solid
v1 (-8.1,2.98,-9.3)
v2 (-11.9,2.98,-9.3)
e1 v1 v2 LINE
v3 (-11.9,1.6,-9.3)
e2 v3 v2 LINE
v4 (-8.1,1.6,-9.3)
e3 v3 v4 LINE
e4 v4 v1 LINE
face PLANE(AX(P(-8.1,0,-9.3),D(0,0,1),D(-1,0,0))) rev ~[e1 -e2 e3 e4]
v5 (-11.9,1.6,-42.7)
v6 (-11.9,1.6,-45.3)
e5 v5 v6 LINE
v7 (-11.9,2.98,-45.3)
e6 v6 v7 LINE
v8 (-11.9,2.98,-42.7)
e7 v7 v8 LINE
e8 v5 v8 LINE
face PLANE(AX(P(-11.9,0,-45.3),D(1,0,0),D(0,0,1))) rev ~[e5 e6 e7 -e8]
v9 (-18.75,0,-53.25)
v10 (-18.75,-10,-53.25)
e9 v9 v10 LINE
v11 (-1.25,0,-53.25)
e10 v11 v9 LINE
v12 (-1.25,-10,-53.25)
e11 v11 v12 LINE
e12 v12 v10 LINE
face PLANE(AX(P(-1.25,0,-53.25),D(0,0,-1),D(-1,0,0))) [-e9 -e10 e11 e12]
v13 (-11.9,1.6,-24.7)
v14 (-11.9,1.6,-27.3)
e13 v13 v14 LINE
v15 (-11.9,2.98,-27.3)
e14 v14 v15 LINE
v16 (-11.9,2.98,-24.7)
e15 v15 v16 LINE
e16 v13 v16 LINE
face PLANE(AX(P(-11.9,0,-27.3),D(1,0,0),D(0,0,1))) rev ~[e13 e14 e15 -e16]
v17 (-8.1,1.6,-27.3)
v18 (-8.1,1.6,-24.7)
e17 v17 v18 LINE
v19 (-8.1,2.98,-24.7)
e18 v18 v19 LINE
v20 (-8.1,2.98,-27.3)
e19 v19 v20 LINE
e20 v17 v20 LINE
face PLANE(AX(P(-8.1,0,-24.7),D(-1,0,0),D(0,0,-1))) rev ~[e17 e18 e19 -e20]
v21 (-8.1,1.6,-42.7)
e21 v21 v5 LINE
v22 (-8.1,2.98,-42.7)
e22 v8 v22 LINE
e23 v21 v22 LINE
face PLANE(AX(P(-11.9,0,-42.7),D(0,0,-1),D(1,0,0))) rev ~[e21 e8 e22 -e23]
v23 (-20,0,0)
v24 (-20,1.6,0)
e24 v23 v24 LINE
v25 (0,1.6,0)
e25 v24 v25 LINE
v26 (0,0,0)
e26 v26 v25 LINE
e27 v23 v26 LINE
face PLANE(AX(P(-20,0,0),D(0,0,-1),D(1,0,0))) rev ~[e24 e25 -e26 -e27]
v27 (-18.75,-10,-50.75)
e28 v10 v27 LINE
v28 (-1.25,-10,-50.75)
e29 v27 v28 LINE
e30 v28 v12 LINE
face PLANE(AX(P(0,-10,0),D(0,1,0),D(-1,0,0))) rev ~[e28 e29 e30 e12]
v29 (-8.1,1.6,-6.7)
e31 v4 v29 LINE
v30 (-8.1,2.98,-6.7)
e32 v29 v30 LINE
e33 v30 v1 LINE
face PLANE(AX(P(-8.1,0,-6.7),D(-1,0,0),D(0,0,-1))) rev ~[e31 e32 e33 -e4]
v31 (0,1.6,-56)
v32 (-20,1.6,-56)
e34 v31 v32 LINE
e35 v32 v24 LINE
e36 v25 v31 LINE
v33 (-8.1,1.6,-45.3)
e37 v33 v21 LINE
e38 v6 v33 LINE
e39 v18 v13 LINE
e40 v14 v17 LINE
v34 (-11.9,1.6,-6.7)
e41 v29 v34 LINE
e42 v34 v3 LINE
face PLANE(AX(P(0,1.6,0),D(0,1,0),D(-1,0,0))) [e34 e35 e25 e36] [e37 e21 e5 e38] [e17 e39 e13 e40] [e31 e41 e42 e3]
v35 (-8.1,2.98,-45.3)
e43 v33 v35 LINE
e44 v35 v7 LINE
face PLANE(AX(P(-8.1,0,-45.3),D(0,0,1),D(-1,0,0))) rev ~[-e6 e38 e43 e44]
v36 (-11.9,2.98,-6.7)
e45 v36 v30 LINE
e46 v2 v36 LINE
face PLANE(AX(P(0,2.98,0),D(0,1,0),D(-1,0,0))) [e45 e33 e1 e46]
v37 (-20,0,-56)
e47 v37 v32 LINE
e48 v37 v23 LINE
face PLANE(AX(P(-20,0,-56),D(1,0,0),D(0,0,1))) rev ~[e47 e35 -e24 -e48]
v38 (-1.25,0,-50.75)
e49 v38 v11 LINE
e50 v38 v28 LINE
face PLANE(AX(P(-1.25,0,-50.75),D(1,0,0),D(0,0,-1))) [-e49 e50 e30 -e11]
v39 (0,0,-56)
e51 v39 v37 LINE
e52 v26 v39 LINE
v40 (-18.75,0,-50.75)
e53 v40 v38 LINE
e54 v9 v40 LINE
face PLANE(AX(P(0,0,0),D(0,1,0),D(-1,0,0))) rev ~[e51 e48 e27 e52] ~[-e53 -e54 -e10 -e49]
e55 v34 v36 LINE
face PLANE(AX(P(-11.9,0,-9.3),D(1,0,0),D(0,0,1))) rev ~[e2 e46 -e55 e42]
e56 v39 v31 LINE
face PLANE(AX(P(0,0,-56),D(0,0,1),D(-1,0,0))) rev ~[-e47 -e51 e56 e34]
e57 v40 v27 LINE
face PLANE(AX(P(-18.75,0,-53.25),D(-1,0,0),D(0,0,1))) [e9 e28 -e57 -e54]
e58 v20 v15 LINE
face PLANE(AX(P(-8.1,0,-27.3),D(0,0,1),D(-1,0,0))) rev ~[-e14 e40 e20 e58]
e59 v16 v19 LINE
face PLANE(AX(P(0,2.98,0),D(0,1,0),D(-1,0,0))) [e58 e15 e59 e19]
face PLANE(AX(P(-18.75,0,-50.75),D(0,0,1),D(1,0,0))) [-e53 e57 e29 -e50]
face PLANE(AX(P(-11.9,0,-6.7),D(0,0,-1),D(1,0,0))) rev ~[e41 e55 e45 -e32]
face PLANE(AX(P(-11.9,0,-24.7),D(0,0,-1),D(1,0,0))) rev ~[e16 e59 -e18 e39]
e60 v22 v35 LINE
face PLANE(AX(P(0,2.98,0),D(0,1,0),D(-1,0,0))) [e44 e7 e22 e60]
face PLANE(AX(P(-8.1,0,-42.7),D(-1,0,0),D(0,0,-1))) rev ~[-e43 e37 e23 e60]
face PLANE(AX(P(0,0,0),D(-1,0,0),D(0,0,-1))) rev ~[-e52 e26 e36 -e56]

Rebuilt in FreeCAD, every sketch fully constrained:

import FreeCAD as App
import Part
import Sketcher

doc = App.newDocument("Part")
params = doc.addObject("Spreadsheet::Sheet", "Params")
for row, (alias, value) in enumerate([
    ("sketch1_width", "20 mm"),
    ("sketch1_height", "56 mm"),
    ("pad1_length", "1.6 mm"),
    ("sketch2_width", "17.5 mm"),
    ("sketch2_height", "2.5 mm"),
    ("pad2_length", "10 mm"),
    ("sketch3_width", "3.8 mm"),
    ("sketch3_height", "2.6 mm"),
    ("pad3_length", "2.98 mm"),
], start=1):
    params.set(f"A{row}", alias)
    params.set(f"B{row}", "=" + value)
    params.setAlias(f"B{row}", alias)

body = doc.addObject("PartDesign::Body", "Body")

# Sketch on XZ plane
sketch1 = body.newObject("Sketcher::SketchObject", "Sketch")
sketch1.AttachmentSupport = (doc.getObject("XZ_Plane"), [""])
sketch1.MapMode = "FlatFace"
sketch1.addGeometry([
    Part.LineSegment(App.Vector(-20, -56, 0), App.Vector(-20, 0, 0)),
    Part.LineSegment(App.Vector(-20, 0, 0), App.Vector(0, 0, 0)),
    Part.LineSegment(App.Vector(0, 0, 0), App.Vector(0, -56, 0)),
    Part.LineSegment(App.Vector(0, -56, 0), App.Vector(-20, -56, 0)),
], False)
sketch1.addConstraint([
    Sketcher.Constraint("Coincident", 0, 2, 1, 1),
    Sketcher.Constraint("Coincident", 1, 2, 2, 1),
    Sketcher.Constraint("Coincident", 2, 2, 3, 1),
    Sketcher.Constraint("Coincident", 3, 2, 0, 1),
    Sketcher.Constraint("Vertical", 0),
    Sketcher.Constraint("Horizontal", 1),
    Sketcher.Constraint("Vertical", 2),
    Sketcher.Constraint("Horizontal", 3),
    Sketcher.Constraint("Coincident", 1, 2, -1, 1),
    Sketcher.Constraint("DistanceX", 1, 1, 1, 2, 20.0),
    Sketcher.Constraint("DistanceY", 0, 1, 0, 2, 56.0),
])
sketch1.setExpression("Constraints[9]", "Params.sketch1_width")
sketch1.setExpression("Constraints[10]", "Params.sketch1_height")
pad1 = body.newObject("PartDesign::Pad", "Pad")
pad1.Profile = sketch1
pad1.setExpression("Length", "Params.pad1_length")
pad1.Reversed = True

# Sketch on XZ plane
sketch2 = body.newObject("Sketcher::SketchObject", "Sketch001")
sketch2.AttachmentSupport = (doc.getObject("XZ_Plane"), [""])
sketch2.MapMode = "FlatFace"
sketch2.addGeometry([
    Part.LineSegment(App.Vector(-18.75, -53.25, 0), App.Vector(-18.75, -50.75, 0)),
    Part.LineSegment(App.Vector(-18.75, -50.75, 0), App.Vector(-1.25, -50.75, 0)),
    Part.LineSegment(App.Vector(-1.25, -50.75, 0), App.Vector(-1.25, -53.25, 0)),
    Part.LineSegment(App.Vector(-1.25, -53.25, 0), App.Vector(-18.75, -53.25, 0)),
], False)
sketch2.addConstraint([
    Sketcher.Constraint("Coincident", 0, 2, 1, 1),
    Sketcher.Constraint("Coincident", 1, 2, 2, 1),
    Sketcher.Constraint("Coincident", 2, 2, 3, 1),
    Sketcher.Constraint("Coincident", 3, 2, 0, 1),
    Sketcher.Constraint("Vertical", 0),
    Sketcher.Constraint("Horizontal", 1),
    Sketcher.Constraint("Vertical", 2),
    Sketcher.Constraint("Horizontal", 3),
    Sketcher.Constraint("DistanceX", 1, 1, 1, 2, 17.5),
    Sketcher.Constraint("DistanceY", 0, 1, 0, 2, 2.5),
    Sketcher.Constraint("DistanceX", 0, 2, -1, 1, 18.75),
    Sketcher.Constraint("DistanceY", 0, 2, -1, 1, 50.75),
])
sketch2.setExpression("Constraints[8]", "Params.sketch2_width")
sketch2.setExpression("Constraints[9]", "Params.sketch2_height")
pad2 = body.newObject("PartDesign::Pad", "Pad001")
pad2.Profile = sketch2
pad2.setExpression("Length", "Params.pad2_length")

# Sketch on XZ plane
sketch3 = body.newObject("Sketcher::SketchObject", "Sketch002")
sketch3.AttachmentSupport = (doc.getObject("XZ_Plane"), [""])
sketch3.MapMode = "FlatFace"
sketch3.addGeometry([
    Part.LineSegment(App.Vector(-11.9, -9.3, 0), App.Vector(-11.9, -6.7, 0)),  # 0
    Part.LineSegment(App.Vector(-11.9, -6.7, 0), App.Vector(-8.1, -6.7, 0)),  # 1
    Part.LineSegment(App.Vector(-8.1, -6.7, 0), App.Vector(-8.1, -9.3, 0)),  # 2
    Part.LineSegment(App.Vector(-8.1, -9.3, 0), App.Vector(-11.9, -9.3, 0)),  # 3
    Part.LineSegment(App.Vector(-11.9, -45.3, 0), App.Vector(-11.9, -42.7, 0)),  # 4
    Part.LineSegment(App.Vector(-11.9, -42.7, 0), App.Vector(-8.1, -42.7, 0)),  # 5
    Part.LineSegment(App.Vector(-8.1, -42.7, 0), App.Vector(-8.1, -45.3, 0)),  # 6
    Part.LineSegment(App.Vector(-8.1, -45.3, 0), App.Vector(-11.9, -45.3, 0)),  # 7
    Part.LineSegment(App.Vector(-8.1, -24.7, 0), App.Vector(-8.1, -27.3, 0)),  # 8
    Part.LineSegment(App.Vector(-8.1, -27.3, 0), App.Vector(-11.9, -27.3, 0)),  # 9
    Part.LineSegment(App.Vector(-11.9, -27.3, 0), App.Vector(-11.9, -24.7, 0)),  # 10
    Part.LineSegment(App.Vector(-11.9, -24.7, 0), App.Vector(-8.1, -24.7, 0)),  # 11
], False)
sketch3.addConstraint([
    Sketcher.Constraint("Coincident", 0, 2, 1, 1),
    Sketcher.Constraint("Coincident", 1, 2, 2, 1),
    Sketcher.Constraint("Coincident", 2, 2, 3, 1),
    Sketcher.Constraint("Coincident", 3, 2, 0, 1),
    Sketcher.Constraint("Coincident", 4, 2, 5, 1),
    Sketcher.Constraint("Coincident", 5, 2, 6, 1),
    Sketcher.Constraint("Coincident", 6, 2, 7, 1),
    Sketcher.Constraint("Coincident", 7, 2, 4, 1),
    Sketcher.Constraint("Coincident", 8, 2, 9, 1),
    Sketcher.Constraint("Coincident", 9, 2, 10, 1),
    Sketcher.Constraint("Coincident", 10, 2, 11, 1),
    Sketcher.Constraint("Coincident", 11, 2, 8, 1),
    Sketcher.Constraint("Vertical", 0),
    Sketcher.Constraint("Horizontal", 1),
    Sketcher.Constraint("Vertical", 2),
    Sketcher.Constraint("Horizontal", 3),
    Sketcher.Constraint("Vertical", 4),
    Sketcher.Constraint("Horizontal", 5),
    Sketcher.Constraint("Vertical", 6),
    Sketcher.Constraint("Horizontal", 7),
    Sketcher.Constraint("Vertical", 8),
    Sketcher.Constraint("Horizontal", 9),
    Sketcher.Constraint("Vertical", 10),
    Sketcher.Constraint("Horizontal", 11),
    Sketcher.Constraint("Vertical", 3, 2, 4, 2),
    Sketcher.Constraint("Vertical", 2, 2, 5, 2),
    Sketcher.Constraint("Vertical", 6, 2, 8, 2),
    Sketcher.Constraint("Vertical", 7, 2, 9, 2),
    Sketcher.Constraint("Equal", 2, 4),
    Sketcher.Constraint("Equal", 6, 8),
    Sketcher.Constraint("DistanceX", 1, 1, 1, 2, 3.8),
    Sketcher.Constraint("DistanceY", 0, 1, 0, 2, 2.6),
    Sketcher.Constraint("DistanceY", 6, 2, 8, 2, 18.0),
    Sketcher.Constraint("DistanceY", 8, 2, 2, 2, 18.0),
    Sketcher.Constraint("DistanceX", 1, 2, -1, 1, 8.1),
    Sketcher.Constraint("DistanceY", 0, 2, -1, 1, 6.7),
])
sketch3.setExpression("Constraints[30]", "Params.sketch3_width")
sketch3.setExpression("Constraints[31]", "Params.sketch3_height")
pad3 = body.newObject("PartDesign::Pad", "Pad002")
pad3.Profile = sketch3
pad3.setExpression("Length", "Params.pad3_length")
pad3.Reversed = True

doc.recompute()
